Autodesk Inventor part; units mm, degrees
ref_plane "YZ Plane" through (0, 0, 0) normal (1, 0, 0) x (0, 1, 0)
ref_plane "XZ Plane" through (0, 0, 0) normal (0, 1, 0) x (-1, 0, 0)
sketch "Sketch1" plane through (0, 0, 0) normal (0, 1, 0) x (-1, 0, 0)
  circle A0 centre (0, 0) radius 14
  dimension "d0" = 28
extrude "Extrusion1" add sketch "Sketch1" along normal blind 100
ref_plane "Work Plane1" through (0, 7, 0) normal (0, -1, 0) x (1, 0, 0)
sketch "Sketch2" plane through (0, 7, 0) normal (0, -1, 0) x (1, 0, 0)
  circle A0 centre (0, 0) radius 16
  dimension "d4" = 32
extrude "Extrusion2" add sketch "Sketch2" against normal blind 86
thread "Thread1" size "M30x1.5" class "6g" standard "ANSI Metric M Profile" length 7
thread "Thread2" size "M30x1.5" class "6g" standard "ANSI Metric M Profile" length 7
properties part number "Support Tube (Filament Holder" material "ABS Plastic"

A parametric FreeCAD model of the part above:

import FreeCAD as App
import Part
import Sketcher

V = App.Vector

doc = App.newDocument("Part")
body = doc.addObject("PartDesign::Body", "Body")

# Sketch on XZ plane
sketch1 = body.newObject("Sketcher::SketchObject", "Sketch")
sketch1.AttachmentSupport = (doc.getObject("XZ_Plane"), [""])
sketch1.MapMode = "FlatFace"
sketch1.addGeometry(Part.Circle(V(0, 0, 0), V(0, 0, 1), 14), False)
sketch1.addConstraint([
    Sketcher.Constraint("Coincident", 0, 3, -1, 1),
    Sketcher.Constraint("Diameter", 0, 28.0),
])
pad1 = body.newObject("PartDesign::Pad", "Pad")
pad1.Profile = sketch1
pad1.Length = 100
pad1.Reversed = True

# Sketch on XZ plane
sketch2 = body.newObject("Sketcher::SketchObject", "Sketch001")
sketch2.AttachmentSupport = (doc.getObject("XZ_Plane"), [""])
sketch2.MapMode = "FlatFace"
sketch2.AttachmentOffset = App.Placement(V(0, 0, -7), App.Rotation())
sketch2.addGeometry(Part.Circle(V(0, 0, 0), V(0, 0, 1), 16), False)
sketch2.addConstraint([
    Sketcher.Constraint("Coincident", 0, 3, -1, 1),
    Sketcher.Constraint("Diameter", 0, 32.0),
])
pad2 = body.newObject("PartDesign::Pad", "Pad001")
pad2.Profile = sketch2
pad2.Length = 86
pad2.Reversed = True

doc.recompute()
